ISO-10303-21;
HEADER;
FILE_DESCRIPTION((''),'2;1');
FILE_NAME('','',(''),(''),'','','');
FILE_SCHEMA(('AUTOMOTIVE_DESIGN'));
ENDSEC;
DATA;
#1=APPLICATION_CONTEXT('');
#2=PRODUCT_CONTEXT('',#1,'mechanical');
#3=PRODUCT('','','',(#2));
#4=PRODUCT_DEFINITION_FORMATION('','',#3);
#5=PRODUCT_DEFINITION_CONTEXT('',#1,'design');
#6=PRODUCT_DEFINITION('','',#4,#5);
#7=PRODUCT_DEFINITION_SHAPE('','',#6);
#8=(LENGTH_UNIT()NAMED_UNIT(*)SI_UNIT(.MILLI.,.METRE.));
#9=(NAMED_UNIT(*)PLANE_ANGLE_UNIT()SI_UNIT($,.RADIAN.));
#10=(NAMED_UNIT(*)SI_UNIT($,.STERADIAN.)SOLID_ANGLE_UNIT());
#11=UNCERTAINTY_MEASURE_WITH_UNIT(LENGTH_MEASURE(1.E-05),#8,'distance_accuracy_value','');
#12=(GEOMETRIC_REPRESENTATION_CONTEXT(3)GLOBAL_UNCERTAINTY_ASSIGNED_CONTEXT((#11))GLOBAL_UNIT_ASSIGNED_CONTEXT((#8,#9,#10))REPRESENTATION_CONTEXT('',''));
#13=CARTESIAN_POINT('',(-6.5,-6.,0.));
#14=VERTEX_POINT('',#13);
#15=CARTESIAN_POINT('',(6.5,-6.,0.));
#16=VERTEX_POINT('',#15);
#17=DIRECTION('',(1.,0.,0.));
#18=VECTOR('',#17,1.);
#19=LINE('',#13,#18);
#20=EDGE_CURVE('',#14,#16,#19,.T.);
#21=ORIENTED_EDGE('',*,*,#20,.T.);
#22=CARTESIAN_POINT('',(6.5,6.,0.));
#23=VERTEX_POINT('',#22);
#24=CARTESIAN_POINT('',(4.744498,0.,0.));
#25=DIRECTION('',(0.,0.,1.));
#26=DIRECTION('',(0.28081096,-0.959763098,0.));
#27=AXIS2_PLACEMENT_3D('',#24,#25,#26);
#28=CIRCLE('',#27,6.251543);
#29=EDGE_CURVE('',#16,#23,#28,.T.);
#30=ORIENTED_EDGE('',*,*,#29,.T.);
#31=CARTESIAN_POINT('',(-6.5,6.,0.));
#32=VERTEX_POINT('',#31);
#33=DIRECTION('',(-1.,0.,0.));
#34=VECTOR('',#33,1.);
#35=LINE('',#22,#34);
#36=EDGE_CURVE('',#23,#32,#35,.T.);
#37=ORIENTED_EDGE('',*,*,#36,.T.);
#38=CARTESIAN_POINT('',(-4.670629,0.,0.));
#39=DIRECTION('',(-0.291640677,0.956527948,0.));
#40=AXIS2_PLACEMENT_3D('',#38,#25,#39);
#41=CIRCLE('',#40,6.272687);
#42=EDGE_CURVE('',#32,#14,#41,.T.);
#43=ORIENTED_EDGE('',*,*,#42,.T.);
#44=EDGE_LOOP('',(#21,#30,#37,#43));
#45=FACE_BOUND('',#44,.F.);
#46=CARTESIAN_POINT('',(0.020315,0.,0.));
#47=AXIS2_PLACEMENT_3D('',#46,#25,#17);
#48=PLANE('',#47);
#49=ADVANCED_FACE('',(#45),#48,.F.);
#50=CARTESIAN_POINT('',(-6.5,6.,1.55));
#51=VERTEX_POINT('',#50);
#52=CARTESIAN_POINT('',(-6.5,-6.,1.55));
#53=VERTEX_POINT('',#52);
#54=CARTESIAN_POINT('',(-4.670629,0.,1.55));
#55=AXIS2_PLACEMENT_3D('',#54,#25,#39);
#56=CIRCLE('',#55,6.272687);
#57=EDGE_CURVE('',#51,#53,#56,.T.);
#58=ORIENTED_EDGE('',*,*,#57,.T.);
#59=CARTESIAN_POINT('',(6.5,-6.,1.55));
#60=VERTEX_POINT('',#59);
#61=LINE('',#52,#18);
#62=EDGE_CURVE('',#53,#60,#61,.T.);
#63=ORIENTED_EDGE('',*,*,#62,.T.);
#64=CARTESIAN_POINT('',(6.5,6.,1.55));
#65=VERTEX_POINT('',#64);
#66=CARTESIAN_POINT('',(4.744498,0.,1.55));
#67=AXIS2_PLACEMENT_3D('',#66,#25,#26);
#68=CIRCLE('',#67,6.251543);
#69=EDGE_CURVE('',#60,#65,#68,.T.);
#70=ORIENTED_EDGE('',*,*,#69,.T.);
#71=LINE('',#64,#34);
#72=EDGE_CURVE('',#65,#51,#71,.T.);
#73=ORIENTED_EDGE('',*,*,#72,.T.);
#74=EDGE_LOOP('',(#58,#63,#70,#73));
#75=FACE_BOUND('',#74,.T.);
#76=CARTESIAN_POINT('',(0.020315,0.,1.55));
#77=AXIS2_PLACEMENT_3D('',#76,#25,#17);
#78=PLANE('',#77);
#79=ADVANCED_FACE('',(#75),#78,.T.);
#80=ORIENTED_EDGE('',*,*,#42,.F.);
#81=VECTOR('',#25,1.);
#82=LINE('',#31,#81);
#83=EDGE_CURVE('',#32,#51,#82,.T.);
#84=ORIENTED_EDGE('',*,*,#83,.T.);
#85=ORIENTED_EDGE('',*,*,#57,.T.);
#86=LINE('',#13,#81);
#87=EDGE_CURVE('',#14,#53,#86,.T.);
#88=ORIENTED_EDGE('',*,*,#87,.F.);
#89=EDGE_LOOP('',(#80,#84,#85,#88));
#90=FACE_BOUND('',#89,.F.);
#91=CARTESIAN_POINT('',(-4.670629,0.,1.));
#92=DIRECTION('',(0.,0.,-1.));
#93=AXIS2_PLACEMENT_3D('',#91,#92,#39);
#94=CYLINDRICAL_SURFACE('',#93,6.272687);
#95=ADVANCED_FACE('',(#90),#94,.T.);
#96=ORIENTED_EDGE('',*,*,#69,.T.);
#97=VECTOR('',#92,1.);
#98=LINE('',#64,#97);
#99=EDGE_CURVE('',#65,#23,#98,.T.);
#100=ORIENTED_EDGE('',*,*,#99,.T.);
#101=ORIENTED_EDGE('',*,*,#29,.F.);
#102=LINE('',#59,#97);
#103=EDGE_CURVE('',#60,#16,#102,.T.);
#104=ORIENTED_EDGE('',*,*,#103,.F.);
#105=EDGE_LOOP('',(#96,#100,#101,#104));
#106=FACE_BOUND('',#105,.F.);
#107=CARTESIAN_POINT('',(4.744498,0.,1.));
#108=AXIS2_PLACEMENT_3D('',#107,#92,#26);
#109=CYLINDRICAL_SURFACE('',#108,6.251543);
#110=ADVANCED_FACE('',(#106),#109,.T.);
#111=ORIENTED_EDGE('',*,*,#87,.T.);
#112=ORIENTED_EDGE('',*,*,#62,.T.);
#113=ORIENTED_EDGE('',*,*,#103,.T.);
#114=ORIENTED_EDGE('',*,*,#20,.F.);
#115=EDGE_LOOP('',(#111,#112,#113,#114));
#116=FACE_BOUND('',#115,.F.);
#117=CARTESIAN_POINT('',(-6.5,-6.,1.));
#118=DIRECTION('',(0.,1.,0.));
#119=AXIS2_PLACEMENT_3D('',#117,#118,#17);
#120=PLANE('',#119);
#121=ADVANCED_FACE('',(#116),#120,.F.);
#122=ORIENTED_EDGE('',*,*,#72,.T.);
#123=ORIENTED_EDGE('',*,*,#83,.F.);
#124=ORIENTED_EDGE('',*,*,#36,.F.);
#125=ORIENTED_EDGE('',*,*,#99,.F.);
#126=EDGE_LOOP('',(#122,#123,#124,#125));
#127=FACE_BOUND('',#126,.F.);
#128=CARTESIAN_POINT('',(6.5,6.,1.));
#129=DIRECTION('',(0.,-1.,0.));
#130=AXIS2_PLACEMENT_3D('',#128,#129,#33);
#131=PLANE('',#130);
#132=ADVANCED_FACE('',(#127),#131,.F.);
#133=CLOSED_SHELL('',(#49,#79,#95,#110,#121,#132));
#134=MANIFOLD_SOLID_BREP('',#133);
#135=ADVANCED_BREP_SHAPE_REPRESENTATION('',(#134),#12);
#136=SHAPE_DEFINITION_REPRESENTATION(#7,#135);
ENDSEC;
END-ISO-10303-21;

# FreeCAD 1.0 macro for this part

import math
import FreeCAD as App
import Part
import Sketcher

doc = App.newDocument("Part")
params = doc.addObject("Spreadsheet::Sheet", "Params")
for row, (alias, value) in enumerate([
    ("sketch1_width", "13 mm"),
    ("pad1_length", "1 mm"),
    ("sketch2_width", "13 mm"),
    ("pad2_length", "0.55 mm"),
], start=1):
    params.set(f"A{row}", alias)
    params.set(f"B{row}", "=" + value)
    params.setAlias(f"B{row}", alias)

body = doc.addObject("PartDesign::Body", "Body")

sketch1 = body.newObject("Sketcher::SketchObject", "Sketch")
sketch1.AttachmentSupport = (doc.getObject("XY_Plane"), [""])
sketch1.MapMode = "FlatFace"
sketch1.addGeometry([
    Part.LineSegment(App.Vector(-6.5, -6, 0), App.Vector(6.5, -6, 0)),
    Part.ArcOfCircle(Part.Circle(App.Vector(4.744498, 0, 0), App.Vector(0, 0, 1), 6.251543), math.radians(-73.691389), math.radians(73.691389)),
    Part.LineSegment(App.Vector(6.5, 6, 0), App.Vector(-6.5, 6, 0)),
    Part.ArcOfCircle(Part.Circle(App.Vector(-4.670629, 0, 0), App.Vector(0, 0, 1), 6.272687), math.radians(106.956207), math.radians(253.043793)),
], False)
sketch1.addConstraint([
    Sketcher.Constraint("Coincident", 0, 2, 1, 1),
    Sketcher.Constraint("Coincident", 1, 2, 2, 1),
    Sketcher.Constraint("Coincident", 2, 2, 3, 1),
    Sketcher.Constraint("Coincident", 3, 2, 0, 1),
    Sketcher.Constraint("Horizontal", 0),
    Sketcher.Constraint("Horizontal", 2),
    Sketcher.Constraint("Symmetric", 0, 2, 2, 2, -1, 1),
    Sketcher.Constraint("PointOnObject", 1, 3, -1),
    Sketcher.Constraint("PointOnObject", 3, 3, -1),
    Sketcher.Constraint("DistanceX", 0, 1, 0, 2, 13.0),
    Sketcher.Constraint("DistanceY", 0, 2, -1, 1, 6.0),
    Sketcher.Constraint("Radius", 1, 6.251543),
    Sketcher.Constraint("Radius", 3, 6.272687),
])
sketch1.setExpression("Constraints[9]", "Params.sketch1_width")
pad1 = body.newObject("PartDesign::Pad", "Pad")
pad1.Profile = sketch1
pad1.setExpression("Length", "Params.pad1_length")

sketch2 = body.newObject("Sketcher::SketchObject", "Sketch001")
sketch2.AttachmentSupport = (doc.getObject("XY_Plane"), [""])
sketch2.MapMode = "FlatFace"
sketch2.AttachmentOffset = App.Placement(App.Vector(0, 0, 1), App.Rotation())
sketch2.addGeometry([
    Part.LineSegment(App.Vector(6.5, 6, 0), App.Vector(-6.5, 6, 0)),
    Part.ArcOfCircle(Part.Circle(App.Vector(-4.670629, 0, 0), App.Vector(0, 0, 1), 6.272687), math.radians(106.956207), math.radians(253.043793)),
    Part.LineSegment(App.Vector(-6.5, -6, 0), App.Vector(6.5, -6, 0)),
    Part.ArcOfCircle(Part.Circle(App.Vector(4.744498, 0, 0), App.Vector(0, 0, 1), 6.251543), math.radians(-73.691389), math.radians(73.691389)),
], False)
sketch2.addConstraint([
    Sketcher.Constraint("Coincident", 0, 2, 1, 1),
    Sketcher.Constraint("Coincident", 1, 2, 2, 1),
    Sketcher.Constraint("Coincident", 2, 2, 3, 1),
    Sketcher.Constraint("Coincident", 3, 2, 0, 1),
    Sketcher.Constraint("Horizontal", 0),
    Sketcher.Constraint("Horizontal", 2),
    Sketcher.Constraint("Symmetric", 0, 2, 2, 2, -1, 1),
    Sketcher.Constraint("PointOnObject", 1, 3, -1),
    Sketcher.Constraint("PointOnObject", 3, 3, -1),
    Sketcher.Constraint("DistanceX", 0, 2, 0, 1, 13.0),
    Sketcher.Constraint("DistanceY", -1, 1, 0, 2, 6.0),
    Sketcher.Constraint("Radius", 1, 6.272687),
    Sketcher.Constraint("Radius", 3, 6.251543),
])
sketch2.setExpression("Constraints[9]", "Params.sketch2_width")
pad2 = body.newObject("PartDesign::Pad", "Pad001")
pad2.Profile = sketch2
pad2.setExpression("Length", "Params.pad2_length")

doc.recompute()
